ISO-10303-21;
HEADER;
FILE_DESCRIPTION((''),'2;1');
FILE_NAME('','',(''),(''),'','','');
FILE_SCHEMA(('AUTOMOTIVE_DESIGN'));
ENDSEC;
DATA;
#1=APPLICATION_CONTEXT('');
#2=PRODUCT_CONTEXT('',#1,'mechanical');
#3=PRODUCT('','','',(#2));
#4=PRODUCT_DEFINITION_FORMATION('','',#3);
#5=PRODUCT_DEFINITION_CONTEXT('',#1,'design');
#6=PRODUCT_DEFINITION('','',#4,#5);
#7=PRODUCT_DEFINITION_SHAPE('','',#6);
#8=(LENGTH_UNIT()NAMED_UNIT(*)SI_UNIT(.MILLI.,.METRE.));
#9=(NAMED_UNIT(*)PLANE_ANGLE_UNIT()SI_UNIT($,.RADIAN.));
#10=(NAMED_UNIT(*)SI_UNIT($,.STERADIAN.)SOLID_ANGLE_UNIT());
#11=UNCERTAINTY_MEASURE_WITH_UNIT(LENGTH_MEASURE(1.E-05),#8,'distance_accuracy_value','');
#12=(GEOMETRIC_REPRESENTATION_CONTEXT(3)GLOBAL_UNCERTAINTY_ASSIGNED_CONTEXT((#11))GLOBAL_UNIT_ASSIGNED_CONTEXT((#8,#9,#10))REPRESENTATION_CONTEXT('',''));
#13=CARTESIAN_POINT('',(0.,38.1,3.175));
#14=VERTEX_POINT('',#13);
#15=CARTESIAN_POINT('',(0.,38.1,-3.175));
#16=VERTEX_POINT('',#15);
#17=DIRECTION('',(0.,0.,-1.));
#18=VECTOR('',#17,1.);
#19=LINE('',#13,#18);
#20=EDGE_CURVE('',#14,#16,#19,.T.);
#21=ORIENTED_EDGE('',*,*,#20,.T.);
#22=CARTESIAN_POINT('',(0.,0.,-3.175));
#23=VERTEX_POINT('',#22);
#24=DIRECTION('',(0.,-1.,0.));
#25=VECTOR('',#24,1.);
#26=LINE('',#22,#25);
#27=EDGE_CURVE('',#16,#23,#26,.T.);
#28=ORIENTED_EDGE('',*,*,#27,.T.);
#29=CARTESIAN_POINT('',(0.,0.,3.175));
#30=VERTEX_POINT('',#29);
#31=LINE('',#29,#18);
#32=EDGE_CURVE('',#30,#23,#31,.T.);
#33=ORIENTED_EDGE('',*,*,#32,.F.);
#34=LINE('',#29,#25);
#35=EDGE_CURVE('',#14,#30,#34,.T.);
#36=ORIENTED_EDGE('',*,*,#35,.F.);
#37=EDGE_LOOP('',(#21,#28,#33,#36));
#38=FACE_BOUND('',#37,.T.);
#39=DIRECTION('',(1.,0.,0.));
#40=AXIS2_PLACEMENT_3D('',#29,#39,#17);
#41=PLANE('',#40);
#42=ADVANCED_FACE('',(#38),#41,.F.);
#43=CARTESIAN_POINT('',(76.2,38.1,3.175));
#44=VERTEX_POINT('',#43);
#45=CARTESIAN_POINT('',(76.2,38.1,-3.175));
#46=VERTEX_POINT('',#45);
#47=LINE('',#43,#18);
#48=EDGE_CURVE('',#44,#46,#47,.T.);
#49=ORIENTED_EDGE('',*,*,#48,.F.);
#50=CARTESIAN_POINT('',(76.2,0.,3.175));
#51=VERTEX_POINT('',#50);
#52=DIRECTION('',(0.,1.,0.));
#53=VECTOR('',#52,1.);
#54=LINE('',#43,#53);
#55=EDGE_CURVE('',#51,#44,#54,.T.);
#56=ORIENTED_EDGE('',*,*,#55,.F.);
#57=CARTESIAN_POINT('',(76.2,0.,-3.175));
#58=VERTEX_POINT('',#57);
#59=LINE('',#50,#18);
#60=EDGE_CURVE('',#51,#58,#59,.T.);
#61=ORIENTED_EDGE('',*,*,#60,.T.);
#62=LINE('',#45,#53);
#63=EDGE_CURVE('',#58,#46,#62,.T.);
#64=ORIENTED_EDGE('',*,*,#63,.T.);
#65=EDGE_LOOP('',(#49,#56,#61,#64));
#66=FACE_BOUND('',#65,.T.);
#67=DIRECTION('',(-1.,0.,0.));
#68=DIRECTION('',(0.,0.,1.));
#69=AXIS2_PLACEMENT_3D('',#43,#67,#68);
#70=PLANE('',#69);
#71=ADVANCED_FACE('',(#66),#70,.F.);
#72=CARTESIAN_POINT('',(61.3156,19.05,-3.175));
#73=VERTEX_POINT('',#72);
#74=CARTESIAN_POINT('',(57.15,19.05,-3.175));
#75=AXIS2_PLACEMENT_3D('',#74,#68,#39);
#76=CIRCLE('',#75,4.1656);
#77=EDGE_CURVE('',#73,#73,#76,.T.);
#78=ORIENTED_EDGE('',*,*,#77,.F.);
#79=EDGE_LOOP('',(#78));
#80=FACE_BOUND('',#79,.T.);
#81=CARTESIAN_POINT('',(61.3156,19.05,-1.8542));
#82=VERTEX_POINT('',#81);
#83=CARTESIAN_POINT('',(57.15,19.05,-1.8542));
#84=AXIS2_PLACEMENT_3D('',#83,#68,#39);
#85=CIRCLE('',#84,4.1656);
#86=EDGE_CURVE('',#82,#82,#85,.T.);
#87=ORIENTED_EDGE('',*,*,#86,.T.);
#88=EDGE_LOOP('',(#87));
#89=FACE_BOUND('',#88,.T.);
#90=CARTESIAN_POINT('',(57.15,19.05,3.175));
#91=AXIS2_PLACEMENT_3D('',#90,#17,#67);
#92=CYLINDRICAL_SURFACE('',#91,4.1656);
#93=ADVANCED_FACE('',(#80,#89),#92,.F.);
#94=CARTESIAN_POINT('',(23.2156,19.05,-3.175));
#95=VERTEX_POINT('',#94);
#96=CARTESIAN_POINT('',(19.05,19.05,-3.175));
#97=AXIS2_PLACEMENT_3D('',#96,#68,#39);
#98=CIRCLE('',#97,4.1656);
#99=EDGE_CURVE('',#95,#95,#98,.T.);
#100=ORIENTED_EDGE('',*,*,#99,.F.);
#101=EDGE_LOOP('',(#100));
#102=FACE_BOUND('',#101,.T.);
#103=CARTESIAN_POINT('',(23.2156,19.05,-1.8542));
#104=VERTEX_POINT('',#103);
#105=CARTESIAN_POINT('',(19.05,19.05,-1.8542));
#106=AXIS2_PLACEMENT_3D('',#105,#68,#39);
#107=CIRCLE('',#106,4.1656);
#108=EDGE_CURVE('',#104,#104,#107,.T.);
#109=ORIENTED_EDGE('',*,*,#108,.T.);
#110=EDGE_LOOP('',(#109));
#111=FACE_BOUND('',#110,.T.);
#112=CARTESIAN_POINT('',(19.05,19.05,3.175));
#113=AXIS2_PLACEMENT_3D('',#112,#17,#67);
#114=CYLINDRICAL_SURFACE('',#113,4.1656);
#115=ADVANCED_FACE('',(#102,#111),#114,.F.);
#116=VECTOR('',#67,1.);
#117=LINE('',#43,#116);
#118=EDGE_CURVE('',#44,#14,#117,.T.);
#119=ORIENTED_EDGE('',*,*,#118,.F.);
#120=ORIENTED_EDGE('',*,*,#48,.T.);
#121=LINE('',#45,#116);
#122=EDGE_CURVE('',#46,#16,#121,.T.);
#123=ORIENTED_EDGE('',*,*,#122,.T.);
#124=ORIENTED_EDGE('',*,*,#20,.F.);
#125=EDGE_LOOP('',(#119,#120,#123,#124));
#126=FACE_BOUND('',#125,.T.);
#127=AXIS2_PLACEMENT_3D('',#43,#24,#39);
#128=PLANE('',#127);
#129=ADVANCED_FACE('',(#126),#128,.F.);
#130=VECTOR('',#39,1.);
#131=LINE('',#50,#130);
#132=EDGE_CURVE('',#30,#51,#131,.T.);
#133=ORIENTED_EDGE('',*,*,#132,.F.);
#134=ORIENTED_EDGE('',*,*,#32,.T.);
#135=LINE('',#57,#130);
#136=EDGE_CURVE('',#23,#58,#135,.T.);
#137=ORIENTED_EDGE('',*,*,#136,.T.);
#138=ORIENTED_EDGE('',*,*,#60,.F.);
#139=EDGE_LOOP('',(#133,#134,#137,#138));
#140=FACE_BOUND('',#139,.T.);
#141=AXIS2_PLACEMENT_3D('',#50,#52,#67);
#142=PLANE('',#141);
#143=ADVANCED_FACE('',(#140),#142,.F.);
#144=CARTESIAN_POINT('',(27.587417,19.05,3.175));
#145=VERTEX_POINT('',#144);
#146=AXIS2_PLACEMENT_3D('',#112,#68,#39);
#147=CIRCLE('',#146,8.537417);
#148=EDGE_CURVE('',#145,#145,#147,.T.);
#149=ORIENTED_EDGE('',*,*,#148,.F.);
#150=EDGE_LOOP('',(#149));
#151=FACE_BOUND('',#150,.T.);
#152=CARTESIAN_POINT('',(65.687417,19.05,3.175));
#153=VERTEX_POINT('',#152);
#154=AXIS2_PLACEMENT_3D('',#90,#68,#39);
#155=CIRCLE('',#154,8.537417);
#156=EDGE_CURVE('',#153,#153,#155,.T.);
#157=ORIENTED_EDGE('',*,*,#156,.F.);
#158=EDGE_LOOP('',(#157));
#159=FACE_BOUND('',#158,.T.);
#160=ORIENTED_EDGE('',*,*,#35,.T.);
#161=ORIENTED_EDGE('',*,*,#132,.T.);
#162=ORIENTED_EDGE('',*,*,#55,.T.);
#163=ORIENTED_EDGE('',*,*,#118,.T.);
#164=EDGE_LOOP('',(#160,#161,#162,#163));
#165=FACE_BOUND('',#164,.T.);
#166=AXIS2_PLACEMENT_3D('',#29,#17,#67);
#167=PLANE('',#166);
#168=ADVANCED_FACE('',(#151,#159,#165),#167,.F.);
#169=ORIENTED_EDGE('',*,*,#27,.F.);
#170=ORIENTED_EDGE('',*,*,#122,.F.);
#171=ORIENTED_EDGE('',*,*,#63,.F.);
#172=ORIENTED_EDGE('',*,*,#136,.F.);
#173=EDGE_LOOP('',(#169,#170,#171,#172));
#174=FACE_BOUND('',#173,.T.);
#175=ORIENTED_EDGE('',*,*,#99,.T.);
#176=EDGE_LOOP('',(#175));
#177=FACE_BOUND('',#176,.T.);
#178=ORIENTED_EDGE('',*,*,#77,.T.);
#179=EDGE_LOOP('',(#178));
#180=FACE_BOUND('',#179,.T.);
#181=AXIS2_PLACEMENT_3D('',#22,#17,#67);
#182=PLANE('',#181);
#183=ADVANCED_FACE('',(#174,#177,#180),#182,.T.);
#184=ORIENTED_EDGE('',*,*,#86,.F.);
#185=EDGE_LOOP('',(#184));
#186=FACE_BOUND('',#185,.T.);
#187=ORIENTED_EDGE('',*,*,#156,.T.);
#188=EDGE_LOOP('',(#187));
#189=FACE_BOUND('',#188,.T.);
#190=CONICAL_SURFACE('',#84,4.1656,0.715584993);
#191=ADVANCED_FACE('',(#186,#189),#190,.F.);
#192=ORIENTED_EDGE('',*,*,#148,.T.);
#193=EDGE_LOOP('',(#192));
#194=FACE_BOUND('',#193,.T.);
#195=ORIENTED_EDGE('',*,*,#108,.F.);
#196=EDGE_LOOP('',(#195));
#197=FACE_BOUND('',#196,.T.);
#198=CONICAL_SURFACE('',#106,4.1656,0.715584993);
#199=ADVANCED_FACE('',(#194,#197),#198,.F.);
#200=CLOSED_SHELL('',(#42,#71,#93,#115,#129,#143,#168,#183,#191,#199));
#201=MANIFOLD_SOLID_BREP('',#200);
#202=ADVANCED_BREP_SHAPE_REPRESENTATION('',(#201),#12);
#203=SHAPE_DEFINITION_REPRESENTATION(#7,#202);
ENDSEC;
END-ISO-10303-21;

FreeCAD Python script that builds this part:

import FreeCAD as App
import Part
import Sketcher
Q = App.Units.Quantity


def faces_at(feature, points):
    """Names of the faces that lie closest to the given points."""
    faces = feature.Shape.Faces
    near = lambda p: min(range(len(faces)), key=lambda i: faces[i].distToShape(Part.Vertex(*p))[0])
    return sorted({f"Face{near(p) + 1}" for p in points})


def add_polygon(sketch, points):
    """Adds a closed chain of lines whose ends are joined by coincident constraints."""
    first, n = sketch.GeometryCount, len(points)
    for a, b in zip(points, points[1:] + points[:1]):
        sketch.addGeometry(Part.LineSegment(App.Vector(*a, 0), App.Vector(*b, 0)), False)
    for i in range(n):
        sketch.addConstraint(Sketcher.Constraint("Coincident", first + i, 2, first + (i + 1) % n, 1))

doc = App.newDocument("Part")
params = doc.addObject("Spreadsheet::Sheet", "Params")
for row, (alias, value) in enumerate([
    ("sketch1_width", "3 in"),
    ("sketch1_diameter", "0.328 in"),
    ("sketch1_height", "1.5 in"),
    ("pad1_length", "0.25 in"),
    ("sketch2_diameter", "0.328 in"),
    ("pad2_length", "91.459713 mm"),
    ("draft_angle", "41 deg"),
    ("sketch3_diameter", "0.328 in"),
    ("pad3_length", "91.459713 mm"),
    ("draft2_angle", "41 deg"),
], start=1):
    params.set(f"A{row}", alias)
    params.set(f"B{row}", "=" + value)
    params.setAlias(f"B{row}", alias)

body = doc.addObject("PartDesign::Body", "Body")

# Sketch on XY plane
sketch1 = body.newObject("Sketcher::SketchObject", "Sketch")
sketch1.AttachmentSupport = (doc.getObject("XY_Plane"), [""])
sketch1.MapMode = "FlatFace"
add_polygon(sketch1, [(0, 38.1), (0, 0), (76.2, 0), (76.2, 38.1)])  # lines 0-3
sketch1.addGeometry(Part.Circle(App.Vector(19.1, 19.1, 0), App.Vector(0, 0, 1), 4.2), False)  # 4
sketch1.addGeometry(Part.Circle(App.Vector(57.1, 19.1, 0), App.Vector(0, 0, 1), 4.2), False)  # 5
sketch1.addConstraint(Sketcher.Constraint("Vertical", 0))
sketch1.addConstraint(Sketcher.Constraint("Horizontal", 1))
sketch1.addConstraint(Sketcher.Constraint("Vertical", 2))
sketch1.addConstraint(Sketcher.Constraint("Horizontal", 3))
sketch1.addConstraint(Sketcher.Constraint("Coincident", 0, 2, -1, 1))
sketch1.addConstraint(Sketcher.Constraint("Equal", 4, 5))
sketch1.addConstraint(Sketcher.Constraint("Horizontal", 4, 3, 5, 3))
sketch1.addConstraint(Sketcher.Constraint("DistanceX", 1, 1, 1, 2, Q("3 in")))
sketch1.addConstraint(Sketcher.Constraint("Diameter", 4, Q("0.328 in")))
sketch1.addConstraint(Sketcher.Constraint("DistanceY", 0, 2, 0, 1, Q("1.5 in")))
sketch1.addConstraint(Sketcher.Constraint("DistanceX", 4, 3, 5, 3, Q("1.5 in")))
sketch1.addConstraint(Sketcher.Constraint("DistanceX", -1, 1, 4, 3, Q("0.75 in")))
sketch1.addConstraint(Sketcher.Constraint("DistanceY", -1, 1, 4, 3, Q("0.75 in")))
sketch1.setExpression("Constraints[11]", "Params.sketch1_width")
sketch1.setExpression("Constraints[12]", "Params.sketch1_diameter")
sketch1.setExpression("Constraints[13]", "Params.sketch1_height")
pad1 = body.newObject("PartDesign::Pad", "Pad")
pad1.Profile = sketch1
pad1.setExpression("Length", "Params.pad1_length")
pad1.Midplane = True
body2 = doc.addObject("PartDesign::Body", "Body001")

# Sketch on XY plane
sketch2 = body2.newObject("Sketcher::SketchObject", "Sketch001")
sketch2.AttachmentSupport = (doc.getObject("XY_Plane001"), [""])
sketch2.MapMode = "FlatFace"
sketch2.AttachmentOffset = App.Placement(App.Vector(0, 0, -0.073 * 25.4), App.Rotation())
sketch2.addGeometry(Part.Circle(App.Vector(19.1, 19.1, 0), App.Vector(0, 0, 1), 4.2), False)
sketch2.addConstraint(Sketcher.Constraint("Diameter", 0, Q("0.328 in")))
sketch2.addConstraint(Sketcher.Constraint("DistanceX", -1, 1, 0, 3, Q("0.75 in")))
sketch2.addConstraint(Sketcher.Constraint("DistanceY", -1, 1, 0, 3, Q("0.75 in")))
sketch2.setExpression("Constraints[0]", "Params.sketch2_diameter")
pad2 = body2.newObject("PartDesign::Pad", "Pad001")
pad2.Profile = sketch2
pad2.setExpression("Length", "Params.pad2_length")
doc.recompute()

datumplane = body2.newObject("PartDesign::Plane", "DatumPlane")
datumplane.AttachmentSupport = (doc.getObject("XY_Plane001"), [""])
datumplane.MapMode = "FlatFace"
datumplane.AttachmentOffset = App.Placement(App.Vector(0, 0, -0.073 * 25.4), App.Rotation())
draft = body2.newObject("PartDesign::Draft", "Draft")
draft.Base = (pad2, faces_at(pad2, [(14.884, 19.05, 43.876)]))
draft.NeutralPlane = (datumplane, [""])
draft.setExpression("Angle", "Params.draft_angle")
draft.Reversed = True
doc.recompute()

boolean = body.newObject("PartDesign::Boolean", "Boolean")
boolean.Type = "Cut"
boolean.addObjects([body2])
body3 = doc.addObject("PartDesign::Body", "Body002")

# Sketch on XY plane
sketch3 = body3.newObject("Sketcher::SketchObject", "Sketch002")
sketch3.AttachmentSupport = (doc.getObject("XY_Plane002"), [""])
sketch3.MapMode = "FlatFace"
sketch3.AttachmentOffset = App.Placement(App.Vector(0, 0, -0.073 * 25.4), App.Rotation())
sketch3.addGeometry(Part.Circle(App.Vector(57.1, 19.1, 0), App.Vector(0, 0, 1), 4.2), False)
sketch3.addConstraint(Sketcher.Constraint("Diameter", 0, Q("0.328 in")))
sketch3.addConstraint(Sketcher.Constraint("DistanceX", -1, 1, 0, 3, Q("2.25 in")))
sketch3.addConstraint(Sketcher.Constraint("DistanceY", -1, 1, 0, 3, Q("0.75 in")))
sketch3.setExpression("Constraints[0]", "Params.sketch3_diameter")
pad3 = body3.newObject("PartDesign::Pad", "Pad002")
pad3.Profile = sketch3
pad3.setExpression("Length", "Params.pad3_length")
doc.recompute()

datumplane2 = body3.newObject("PartDesign::Plane", "DatumPlane001")
datumplane2.AttachmentSupport = (doc.getObject("XY_Plane002"), [""])
datumplane2.MapMode = "FlatFace"
datumplane2.AttachmentOffset = App.Placement(App.Vector(0, 0, -0.073 * 25.4), App.Rotation())
draft2 = body3.newObject("PartDesign::Draft", "Draft001")
draft2.Base = (pad3, faces_at(pad3, [(52.984, 19.05, 43.876)]))
draft2.NeutralPlane = (datumplane2, [""])
draft2.setExpression("Angle", "Params.draft2_angle")
draft2.Reversed = True
doc.recompute()

boolean2 = body.newObject("PartDesign::Boolean", "Boolean001")
boolean2.Type = "Cut"
boolean2.addObjects([body3])

doc.recompute()
